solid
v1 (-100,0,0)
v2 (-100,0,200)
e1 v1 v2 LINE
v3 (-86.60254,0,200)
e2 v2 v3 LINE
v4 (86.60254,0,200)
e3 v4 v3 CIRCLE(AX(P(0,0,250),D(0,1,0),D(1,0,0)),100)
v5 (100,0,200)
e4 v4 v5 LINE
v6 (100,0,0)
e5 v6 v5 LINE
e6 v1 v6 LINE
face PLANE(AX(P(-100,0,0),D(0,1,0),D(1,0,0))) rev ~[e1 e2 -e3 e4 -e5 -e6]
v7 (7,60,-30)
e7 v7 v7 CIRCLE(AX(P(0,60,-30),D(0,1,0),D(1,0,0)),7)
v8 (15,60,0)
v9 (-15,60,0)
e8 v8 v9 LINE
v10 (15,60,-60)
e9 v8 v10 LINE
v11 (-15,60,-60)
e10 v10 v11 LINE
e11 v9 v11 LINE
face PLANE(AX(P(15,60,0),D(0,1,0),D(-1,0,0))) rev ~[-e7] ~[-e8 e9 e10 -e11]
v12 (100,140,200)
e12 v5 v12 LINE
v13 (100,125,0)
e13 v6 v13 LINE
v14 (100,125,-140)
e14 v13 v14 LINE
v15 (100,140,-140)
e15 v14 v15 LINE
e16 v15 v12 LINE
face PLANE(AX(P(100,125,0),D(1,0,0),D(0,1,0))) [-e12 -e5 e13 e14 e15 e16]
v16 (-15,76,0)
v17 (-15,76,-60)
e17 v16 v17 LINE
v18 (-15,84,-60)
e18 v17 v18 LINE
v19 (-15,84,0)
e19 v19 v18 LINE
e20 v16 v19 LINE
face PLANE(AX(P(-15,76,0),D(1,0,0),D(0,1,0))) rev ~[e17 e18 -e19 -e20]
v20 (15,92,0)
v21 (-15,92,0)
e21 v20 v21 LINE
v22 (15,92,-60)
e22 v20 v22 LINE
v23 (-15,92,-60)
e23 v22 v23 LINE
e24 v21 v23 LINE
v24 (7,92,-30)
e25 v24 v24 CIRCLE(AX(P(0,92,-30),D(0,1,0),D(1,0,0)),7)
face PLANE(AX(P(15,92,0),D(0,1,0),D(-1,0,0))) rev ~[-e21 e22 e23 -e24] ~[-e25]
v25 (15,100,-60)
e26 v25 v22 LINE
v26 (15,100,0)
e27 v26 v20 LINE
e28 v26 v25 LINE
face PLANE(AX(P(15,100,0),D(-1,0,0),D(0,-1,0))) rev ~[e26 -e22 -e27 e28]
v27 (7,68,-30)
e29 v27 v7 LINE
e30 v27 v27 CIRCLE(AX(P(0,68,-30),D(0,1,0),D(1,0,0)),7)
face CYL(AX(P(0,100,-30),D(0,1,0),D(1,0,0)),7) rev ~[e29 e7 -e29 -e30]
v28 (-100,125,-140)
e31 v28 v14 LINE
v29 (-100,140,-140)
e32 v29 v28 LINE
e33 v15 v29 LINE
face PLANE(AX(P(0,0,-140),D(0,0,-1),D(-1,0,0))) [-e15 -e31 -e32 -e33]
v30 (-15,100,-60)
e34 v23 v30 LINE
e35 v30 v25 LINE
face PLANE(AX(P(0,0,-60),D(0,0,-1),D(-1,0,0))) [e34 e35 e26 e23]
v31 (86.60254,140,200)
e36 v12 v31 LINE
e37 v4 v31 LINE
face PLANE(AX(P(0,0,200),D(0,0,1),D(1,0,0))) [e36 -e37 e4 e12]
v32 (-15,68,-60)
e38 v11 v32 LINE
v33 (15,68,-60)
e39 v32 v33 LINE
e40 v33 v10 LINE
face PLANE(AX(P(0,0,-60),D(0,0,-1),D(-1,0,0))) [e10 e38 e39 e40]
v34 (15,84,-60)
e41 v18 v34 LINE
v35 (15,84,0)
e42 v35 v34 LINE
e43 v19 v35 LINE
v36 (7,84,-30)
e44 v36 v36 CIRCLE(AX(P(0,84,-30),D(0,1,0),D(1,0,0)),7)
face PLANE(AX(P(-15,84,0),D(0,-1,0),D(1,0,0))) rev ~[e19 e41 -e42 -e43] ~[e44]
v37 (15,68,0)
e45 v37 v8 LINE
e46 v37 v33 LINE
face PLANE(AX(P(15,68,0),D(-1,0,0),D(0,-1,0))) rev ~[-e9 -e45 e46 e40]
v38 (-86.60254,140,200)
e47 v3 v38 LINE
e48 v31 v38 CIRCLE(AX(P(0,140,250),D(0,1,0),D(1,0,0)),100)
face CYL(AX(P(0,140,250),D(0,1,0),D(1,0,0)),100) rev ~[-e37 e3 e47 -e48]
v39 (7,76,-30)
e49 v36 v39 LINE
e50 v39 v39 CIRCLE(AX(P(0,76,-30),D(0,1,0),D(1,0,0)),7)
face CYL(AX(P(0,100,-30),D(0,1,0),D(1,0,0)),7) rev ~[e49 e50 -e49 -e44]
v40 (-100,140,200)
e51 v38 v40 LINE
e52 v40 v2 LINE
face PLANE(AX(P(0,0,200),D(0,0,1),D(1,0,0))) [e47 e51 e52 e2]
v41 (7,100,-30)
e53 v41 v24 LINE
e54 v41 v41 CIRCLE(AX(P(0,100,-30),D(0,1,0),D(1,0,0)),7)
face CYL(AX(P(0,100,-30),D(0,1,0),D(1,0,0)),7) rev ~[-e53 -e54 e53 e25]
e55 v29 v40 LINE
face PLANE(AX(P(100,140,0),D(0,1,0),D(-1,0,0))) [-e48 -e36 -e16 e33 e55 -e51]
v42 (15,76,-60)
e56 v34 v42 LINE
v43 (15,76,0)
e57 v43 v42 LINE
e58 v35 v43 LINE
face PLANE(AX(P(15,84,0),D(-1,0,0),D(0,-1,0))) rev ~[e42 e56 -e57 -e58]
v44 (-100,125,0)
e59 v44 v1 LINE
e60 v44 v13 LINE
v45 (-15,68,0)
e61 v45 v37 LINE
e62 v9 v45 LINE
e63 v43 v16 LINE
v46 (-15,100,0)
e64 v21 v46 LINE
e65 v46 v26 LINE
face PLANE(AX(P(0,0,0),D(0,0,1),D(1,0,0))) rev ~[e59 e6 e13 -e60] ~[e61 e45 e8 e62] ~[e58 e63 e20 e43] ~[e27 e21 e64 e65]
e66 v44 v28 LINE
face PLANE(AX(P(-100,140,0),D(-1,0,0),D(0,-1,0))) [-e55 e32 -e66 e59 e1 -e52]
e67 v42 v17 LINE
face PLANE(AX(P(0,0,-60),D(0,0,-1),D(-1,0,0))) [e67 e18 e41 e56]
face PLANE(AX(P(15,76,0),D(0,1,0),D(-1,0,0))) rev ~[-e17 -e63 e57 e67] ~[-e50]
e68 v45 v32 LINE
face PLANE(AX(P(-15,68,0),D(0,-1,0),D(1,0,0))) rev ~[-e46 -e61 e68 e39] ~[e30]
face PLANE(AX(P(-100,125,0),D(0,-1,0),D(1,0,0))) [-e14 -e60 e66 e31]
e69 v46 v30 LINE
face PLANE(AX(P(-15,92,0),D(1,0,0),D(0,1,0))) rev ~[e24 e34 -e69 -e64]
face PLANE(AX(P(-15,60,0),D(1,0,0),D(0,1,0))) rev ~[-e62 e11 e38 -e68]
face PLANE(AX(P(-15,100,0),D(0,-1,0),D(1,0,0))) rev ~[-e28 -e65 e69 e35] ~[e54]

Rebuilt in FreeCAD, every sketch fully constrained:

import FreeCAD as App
import Part
import Sketcher
from FreeCAD import Vector
Q = App.Units.Quantity

doc = App.newDocument("Part")
params = doc.addObject("Spreadsheet::Sheet", "Params")
for row, (alias, value) in enumerate([
    ("sketch1_width", "200 mm"),
    ("sketch1_height", "140 mm"),
    ("pad1_length", "200 mm"),
    ("sketch2_diameter", "200 mm"),
    ("pocket1_length", "140 mm"),
    ("sketch3_width", "30 mm"),
    ("sketch3_height", "8 mm"),
    ("pad2_length", "60 mm"),
    ("sketch4_diameter", "14 mm"),
    ("pocket2_length", "40 mm"),
    ("sketch5_height", "15 mm"),
    ("sketch5_width", "200 mm"),
    ("pad3_length", "140 mm"),
], start=1):
    params.set(f"A{row}", alias)
    params.set(f"B{row}", "=" + value)
    params.setAlias(f"B{row}", alias)

body = doc.addObject("PartDesign::Body", "Body")

# Sketch on XY plane
sketch1 = body.newObject("Sketcher::SketchObject", "Sketch")
sketch1.AttachmentSupport = (doc.getObject("XY_Plane"), [""])
sketch1.MapMode = "FlatFace"
sketch1.addGeometry(Part.LineSegment(Vector(-100, 140, 0), Vector(-100, 0, 0)), False)
sketch1.addGeometry(Part.LineSegment(Vector(-100, 0, 0), Vector(100, 0, 0)), False)
sketch1.addGeometry(Part.LineSegment(Vector(100, 0, 0), Vector(100, 140, 0)), False)
sketch1.addGeometry(Part.LineSegment(Vector(100, 140, 0), Vector(-100, 140, 0)), False)
sketch1.addConstraint(Sketcher.Constraint("Coincident", 0, 2, 1, 1))
sketch1.addConstraint(Sketcher.Constraint("Coincident", 1, 2, 2, 1))
sketch1.addConstraint(Sketcher.Constraint("Coincident", 2, 2, 3, 1))
sketch1.addConstraint(Sketcher.Constraint("Coincident", 3, 2, 0, 1))
sketch1.addConstraint(Sketcher.Constraint("Vertical", 0))
sketch1.addConstraint(Sketcher.Constraint("Horizontal", 1))
sketch1.addConstraint(Sketcher.Constraint("Vertical", 2))
sketch1.addConstraint(Sketcher.Constraint("Horizontal", 3))
sketch1.addConstraint(Sketcher.Constraint("Symmetric", 0, 2, 1, 2, -1, 1))
sketch1.addConstraint(Sketcher.Constraint("DistanceX", 1, 1, 1, 2, Q("200 mm")))
sketch1.addConstraint(Sketcher.Constraint("DistanceY", 0, 2, 0, 1, Q("140 mm")))
sketch1.setExpression("Constraints[9]", "Params.sketch1_width")
sketch1.setExpression("Constraints[10]", "Params.sketch1_height")
pad1 = body.newObject("PartDesign::Pad", "Pad")
pad1.Profile = sketch1
pad1.setExpression("Length", "Params.pad1_length")

# Sketch on XZ plane
sketch2 = body.newObject("Sketcher::SketchObject", "Sketch001")
sketch2.AttachmentSupport = (doc.getObject("XZ_Plane"), [""])
sketch2.MapMode = "FlatFace"
sketch2.AttachmentOffset = App.Placement(Vector(0, 0, -140), App.Rotation())
sketch2.addGeometry(Part.Circle(Vector(0, 250, 0), Vector(0, 0, 1), 100), False)
sketch2.addConstraint(Sketcher.Constraint("PointOnObject", 0, 3, -2))
sketch2.addConstraint(Sketcher.Constraint("Diameter", 0, Q("200 mm")))
sketch2.addConstraint(Sketcher.Constraint("DistanceY", -1, 1, 0, 3, Q("250 mm")))
sketch2.setExpression("Constraints[1]", "Params.sketch2_diameter")
pocket1 = body.newObject("PartDesign::Pocket", "Pocket")
pocket1.Profile = sketch2
pocket1.setExpression("Length", "Params.pocket1_length")
pocket1.Reversed = True

# Sketch on XY plane
sketch3 = body.newObject("Sketcher::SketchObject", "Sketch002")
sketch3.AttachmentSupport = (doc.getObject("XY_Plane"), [""])
sketch3.MapMode = "FlatFace"
sketch3.addGeometry(Part.LineSegment(Vector(-15, 60, 0), Vector(-15, 68, 0)), False)
sketch3.addGeometry(Part.LineSegment(Vector(-15, 68, 0), Vector(15, 68, 0)), False)
sketch3.addGeometry(Part.LineSegment(Vector(15, 68, 0), Vector(15, 60, 0)), False)
sketch3.addGeometry(Part.LineSegment(Vector(15, 60, 0), Vector(-15, 60, 0)), False)
sketch3.addGeometry(Part.LineSegment(Vector(15, 84, 0), Vector(15, 76, 0)), False)
sketch3.addGeometry(Part.LineSegment(Vector(15, 76, 0), Vector(-15, 76, 0)), False)
sketch3.addGeometry(Part.LineSegment(Vector(-15, 76, 0), Vector(-15, 84, 0)), False)
sketch3.addGeometry(Part.LineSegment(Vector(-15, 84, 0), Vector(15, 84, 0)), False)
sketch3.addGeometry(Part.LineSegment(Vector(15, 100, 0), Vector(15, 92, 0)), False)
sketch3.addGeometry(Part.LineSegment(Vector(15, 92, 0), Vector(-15, 92, 0)), False)
sketch3.addGeometry(Part.LineSegment(Vector(-15, 92, 0), Vector(-15, 100, 0)), False)
sketch3.addGeometry(Part.LineSegment(Vector(-15, 100, 0), Vector(15, 100, 0)), False)
sketch3.addConstraint(Sketcher.Constraint("Coincident", 0, 2, 1, 1))
sketch3.addConstraint(Sketcher.Constraint("Coincident", 1, 2, 2, 1))
sketch3.addConstraint(Sketcher.Constraint("Coincident", 2, 2, 3, 1))
sketch3.addConstraint(Sketcher.Constraint("Coincident", 3, 2, 0, 1))
sketch3.addConstraint(Sketcher.Constraint("Coincident", 4, 2, 5, 1))
sketch3.addConstraint(Sketcher.Constraint("Coincident", 5, 2, 6, 1))
sketch3.addConstraint(Sketcher.Constraint("Coincident", 6, 2, 7, 1))
sketch3.addConstraint(Sketcher.Constraint("Coincident", 7, 2, 4, 1))
sketch3.addConstraint(Sketcher.Constraint("Coincident", 8, 2, 9, 1))
sketch3.addConstraint(Sketcher.Constraint("Coincident", 9, 2, 10, 1))
sketch3.addConstraint(Sketcher.Constraint("Coincident", 10, 2, 11, 1))
sketch3.addConstraint(Sketcher.Constraint("Coincident", 11, 2, 8, 1))
sketch3.addConstraint(Sketcher.Constraint("Vertical", 0))
sketch3.addConstraint(Sketcher.Constraint("Horizontal", 1))
sketch3.addConstraint(Sketcher.Constraint("Vertical", 2))
sketch3.addConstraint(Sketcher.Constraint("Horizontal", 3))
sketch3.addConstraint(Sketcher.Constraint("Vertical", 4))
sketch3.addConstraint(Sketcher.Constraint("Horizontal", 5))
sketch3.addConstraint(Sketcher.Constraint("Vertical", 6))
sketch3.addConstraint(Sketcher.Constraint("Horizontal", 7))
sketch3.addConstraint(Sketcher.Constraint("Vertical", 8))
sketch3.addConstraint(Sketcher.Constraint("Horizontal", 9))
sketch3.addConstraint(Sketcher.Constraint("Vertical", 10))
sketch3.addConstraint(Sketcher.Constraint("Horizontal", 11))
sketch3.addConstraint(Sketcher.Constraint("Vertical", 2, 2, 4, 2))
sketch3.addConstraint(Sketcher.Constraint("Vertical", 3, 2, 5, 2))
sketch3.addConstraint(Sketcher.Constraint("Vertical", 7, 2, 8, 2))
sketch3.addConstraint(Sketcher.Constraint("Vertical", 6, 2, 9, 2))
sketch3.addConstraint(Sketcher.Constraint("Equal", 2, 4))
sketch3.addConstraint(Sketcher.Constraint("Equal", 6, 8))
sketch3.addConstraint(Sketcher.Constraint("DistanceX", 1, 1, 1, 2, Q("30 mm")))
sketch3.addConstraint(Sketcher.Constraint("DistanceY", 0, 1, 0, 2, Q("8 mm")))
sketch3.addConstraint(Sketcher.Constraint("DistanceY", 1, 2, 4, 2, Q("8 mm")))
sketch3.addConstraint(Sketcher.Constraint("DistanceY", 7, 2, 8, 2, Q("8 mm")))
sketch3.addConstraint(Sketcher.Constraint("DistanceX", 0, 2, -1, 1, Q("15 mm")))
sketch3.addConstraint(Sketcher.Constraint("DistanceY", -1, 1, 0, 2, Q("68 mm")))
sketch3.setExpression("Constraints[30]", "Params.sketch3_width")
sketch3.setExpression("Constraints[31]", "Params.sketch3_height")
pad2 = body.newObject("PartDesign::Pad", "Pad001")
pad2.Profile = sketch3
pad2.setExpression("Length", "Params.pad2_length")
pad2.Reversed = True

# Sketch on XZ plane
sketch4 = body.newObject("Sketcher::SketchObject", "Sketch003")
sketch4.AttachmentSupport = (doc.getObject("XZ_Plane"), [""])
sketch4.MapMode = "FlatFace"
sketch4.AttachmentOffset = App.Placement(Vector(0, 0, -100), App.Rotation())
sketch4.addGeometry(Part.Circle(Vector(0, -30, 0), Vector(0, 0, 1), 7), False)
sketch4.addConstraint(Sketcher.Constraint("PointOnObject", 0, 3, -2))
sketch4.addConstraint(Sketcher.Constraint("Diameter", 0, Q("14 mm")))
sketch4.addConstraint(Sketcher.Constraint("DistanceY", 0, 3, -1, 1, Q("30 mm")))
sketch4.setExpression("Constraints[1]", "Params.sketch4_diameter")
pocket2 = body.newObject("PartDesign::Pocket", "Pocket001")
pocket2.Profile = sketch4
pocket2.setExpression("Length", "Params.pocket2_length")
pocket2.Reversed = True

# Sketch on XY plane
sketch5 = body.newObject("Sketcher::SketchObject", "Sketch004")
sketch5.AttachmentSupport = (doc.getObject("XY_Plane"), [""])
sketch5.MapMode = "FlatFace"
sketch5.addGeometry(Part.LineSegment(Vector(100, 140, 0), Vector(100, 125, 0)), False)
sketch5.addGeometry(Part.LineSegment(Vector(100, 125, 0), Vector(-100, 125, 0)), False)
sketch5.addGeometry(Part.LineSegment(Vector(-100, 125, 0), Vector(-100, 140, 0)), False)
sketch5.addGeometry(Part.LineSegment(Vector(-100, 140, 0), Vector(100, 140, 0)), False)
sketch5.addConstraint(Sketcher.Constraint("Coincident", 0, 2, 1, 1))
sketch5.addConstraint(Sketcher.Constraint("Coincident", 1, 2, 2, 1))
sketch5.addConstraint(Sketcher.Constraint("Coincident", 2, 2, 3, 1))
sketch5.addConstraint(Sketcher.Constraint("Coincident", 3, 2, 0, 1))
sketch5.addConstraint(Sketcher.Constraint("Vertical", 0))
sketch5.addConstraint(Sketcher.Constraint("Horizontal", 1))
sketch5.addConstraint(Sketcher.Constraint("Vertical", 2))
sketch5.addConstraint(Sketcher.Constraint("Horizontal", 3))
sketch5.addConstraint(Sketcher.Constraint("DistanceY", 0, 2, 0, 1, Q("15 mm")))
sketch5.addConstraint(Sketcher.Constraint("DistanceX", 1, 2, 1, 1, Q("200 mm")))
sketch5.addConstraint(Sketcher.Constraint("DistanceX", -1, 1, 0, 2, Q("100 mm")))
sketch5.addConstraint(Sketcher.Constraint("DistanceY", -1, 1, 0, 2, Q("125 mm")))
sketch5.setExpression("Constraints[8]", "Params.sketch5_height")
sketch5.setExpression("Constraints[9]", "Params.sketch5_width")
pad3 = body.newObject("PartDesign::Pad", "Pad002")
pad3.Profile = sketch5
pad3.setExpression("Length", "Params.pad3_length")
pad3.Reversed = True

doc.recompute()
